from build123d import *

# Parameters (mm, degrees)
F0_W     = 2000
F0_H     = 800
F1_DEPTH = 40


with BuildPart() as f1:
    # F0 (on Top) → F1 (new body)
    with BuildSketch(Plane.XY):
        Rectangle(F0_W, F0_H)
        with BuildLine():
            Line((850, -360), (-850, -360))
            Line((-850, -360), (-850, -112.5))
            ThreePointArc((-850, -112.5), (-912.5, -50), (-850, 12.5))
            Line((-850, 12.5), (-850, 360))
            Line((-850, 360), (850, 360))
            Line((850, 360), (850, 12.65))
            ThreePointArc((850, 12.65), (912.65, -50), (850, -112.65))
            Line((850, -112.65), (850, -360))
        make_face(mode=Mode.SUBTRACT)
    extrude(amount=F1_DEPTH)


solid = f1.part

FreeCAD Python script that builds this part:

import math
import FreeCAD as App
import Part
import Sketcher

V = App.Vector
Q = App.Units.Quantity

doc = App.newDocument("Part")
body = doc.addObject("PartDesign::Body", "Body")

sketch1 = body.newObject("Sketcher::SketchObject", "Sketch")
sketch1.AttachmentSupport = (doc.getObject("XY_Plane"), [""])
sketch1.MapMode = "FlatFace"
sketch1.addGeometry([
    Part.LineSegment(V(-1000, 400, 0), V(-1000, -400, 0)),
    Part.LineSegment(V(-1000, -400, 0), V(1000, -400, 0)),
    Part.LineSegment(V(1000, -400, 0), V(1000, 400, 0)),
    Part.LineSegment(V(1000, 400, 0), V(-1000, 400, 0)),
    Part.LineSegment(V(850, -113, 0), V(850, -360, 0)),
    Part.LineSegment(V(850, -360, 0), V(-850, -360, 0)),
    Part.LineSegment(V(-850, -360, 0), V(-850, -112, 0)),
    Part.ArcOfCircle(Part.Circle(V(-850, -50, 0), V(0, 0, 1), 62), math.radians(90), math.radians(270)),
    Part.LineSegment(V(-850, 12, 0), V(-850, 360, 0)),
    Part.LineSegment(V(-850, 360, 0), V(850, 360, 0)),
    Part.LineSegment(V(850, 360, 0), V(850, 13, 0)),
    Part.ArcOfCircle(Part.Circle(V(850, -50, 0), V(0, 0, 1), 63), math.radians(-90), math.radians(90)),
], False)
sketch1.addConstraint([
    Sketcher.Constraint("Coincident", 0, 2, 1, 1),
    Sketcher.Constraint("Coincident", 1, 2, 2, 1),
    Sketcher.Constraint("Coincident", 2, 2, 3, 1),
    Sketcher.Constraint("Coincident", 3, 2, 0, 1),
    Sketcher.Constraint("Coincident", 4, 2, 5, 1),
    Sketcher.Constraint("Coincident", 5, 2, 6, 1),
    Sketcher.Constraint("Coincident", 6, 2, 7, 2),
    Sketcher.Constraint("Coincident", 7, 1, 8, 1),
    Sketcher.Constraint("Coincident", 8, 2, 9, 1),
    Sketcher.Constraint("Coincident", 9, 2, 10, 1),
    Sketcher.Constraint("Coincident", 10, 2, 11, 2),
    Sketcher.Constraint("Coincident", 11, 1, 4, 1),
    Sketcher.Constraint("Vertical", 0),
    Sketcher.Constraint("Horizontal", 1),
    Sketcher.Constraint("Vertical", 2),
    Sketcher.Constraint("Horizontal", 3),
    Sketcher.Constraint("Vertical", 4),
    Sketcher.Constraint("Horizontal", 5),
    Sketcher.Constraint("Vertical", 6),
    Sketcher.Constraint("Vertical", 8),
    Sketcher.Constraint("Horizontal", 9),
    Sketcher.Constraint("Vertical", 10),
    Sketcher.Constraint("Symmetric", 0, 2, 2, 2, -1, 1),
    Sketcher.Constraint("Symmetric", 4, 2, 8, 2, -1, 1),
    Sketcher.Constraint("Symmetric", 7, 3, 11, 3, -2),
    Sketcher.Constraint("Vertical", 11, 3, 4, 2),
    Sketcher.Constraint("Vertical", 7, 3, 5, 2),
    Sketcher.Constraint("Vertical", 4, 2, 9, 2),
    Sketcher.Constraint("Radius", 7, Q("62.5 mm")),
    Sketcher.Constraint("DistanceX", 1, 1, 1, 2, Q("2000 mm")),
    Sketcher.Constraint("DistanceX", 5, 2, 5, 1, Q("1700 mm")),
    Sketcher.Constraint("DistanceY", 0, 2, 0, 1, Q("800 mm")),
    Sketcher.Constraint("Radius", 11, Q("62.65 mm")),
    Sketcher.Constraint("DistanceY", 6, 1, 6, 2, Q("247.5 mm")),
    Sketcher.Constraint("DistanceY", 8, 1, 8, 2, Q("347.5 mm")),
])
pad1 = body.newObject("PartDesign::Pad", "Pad")
pad1.Profile = sketch1
pad1.Length = 40

doc.recompute()
